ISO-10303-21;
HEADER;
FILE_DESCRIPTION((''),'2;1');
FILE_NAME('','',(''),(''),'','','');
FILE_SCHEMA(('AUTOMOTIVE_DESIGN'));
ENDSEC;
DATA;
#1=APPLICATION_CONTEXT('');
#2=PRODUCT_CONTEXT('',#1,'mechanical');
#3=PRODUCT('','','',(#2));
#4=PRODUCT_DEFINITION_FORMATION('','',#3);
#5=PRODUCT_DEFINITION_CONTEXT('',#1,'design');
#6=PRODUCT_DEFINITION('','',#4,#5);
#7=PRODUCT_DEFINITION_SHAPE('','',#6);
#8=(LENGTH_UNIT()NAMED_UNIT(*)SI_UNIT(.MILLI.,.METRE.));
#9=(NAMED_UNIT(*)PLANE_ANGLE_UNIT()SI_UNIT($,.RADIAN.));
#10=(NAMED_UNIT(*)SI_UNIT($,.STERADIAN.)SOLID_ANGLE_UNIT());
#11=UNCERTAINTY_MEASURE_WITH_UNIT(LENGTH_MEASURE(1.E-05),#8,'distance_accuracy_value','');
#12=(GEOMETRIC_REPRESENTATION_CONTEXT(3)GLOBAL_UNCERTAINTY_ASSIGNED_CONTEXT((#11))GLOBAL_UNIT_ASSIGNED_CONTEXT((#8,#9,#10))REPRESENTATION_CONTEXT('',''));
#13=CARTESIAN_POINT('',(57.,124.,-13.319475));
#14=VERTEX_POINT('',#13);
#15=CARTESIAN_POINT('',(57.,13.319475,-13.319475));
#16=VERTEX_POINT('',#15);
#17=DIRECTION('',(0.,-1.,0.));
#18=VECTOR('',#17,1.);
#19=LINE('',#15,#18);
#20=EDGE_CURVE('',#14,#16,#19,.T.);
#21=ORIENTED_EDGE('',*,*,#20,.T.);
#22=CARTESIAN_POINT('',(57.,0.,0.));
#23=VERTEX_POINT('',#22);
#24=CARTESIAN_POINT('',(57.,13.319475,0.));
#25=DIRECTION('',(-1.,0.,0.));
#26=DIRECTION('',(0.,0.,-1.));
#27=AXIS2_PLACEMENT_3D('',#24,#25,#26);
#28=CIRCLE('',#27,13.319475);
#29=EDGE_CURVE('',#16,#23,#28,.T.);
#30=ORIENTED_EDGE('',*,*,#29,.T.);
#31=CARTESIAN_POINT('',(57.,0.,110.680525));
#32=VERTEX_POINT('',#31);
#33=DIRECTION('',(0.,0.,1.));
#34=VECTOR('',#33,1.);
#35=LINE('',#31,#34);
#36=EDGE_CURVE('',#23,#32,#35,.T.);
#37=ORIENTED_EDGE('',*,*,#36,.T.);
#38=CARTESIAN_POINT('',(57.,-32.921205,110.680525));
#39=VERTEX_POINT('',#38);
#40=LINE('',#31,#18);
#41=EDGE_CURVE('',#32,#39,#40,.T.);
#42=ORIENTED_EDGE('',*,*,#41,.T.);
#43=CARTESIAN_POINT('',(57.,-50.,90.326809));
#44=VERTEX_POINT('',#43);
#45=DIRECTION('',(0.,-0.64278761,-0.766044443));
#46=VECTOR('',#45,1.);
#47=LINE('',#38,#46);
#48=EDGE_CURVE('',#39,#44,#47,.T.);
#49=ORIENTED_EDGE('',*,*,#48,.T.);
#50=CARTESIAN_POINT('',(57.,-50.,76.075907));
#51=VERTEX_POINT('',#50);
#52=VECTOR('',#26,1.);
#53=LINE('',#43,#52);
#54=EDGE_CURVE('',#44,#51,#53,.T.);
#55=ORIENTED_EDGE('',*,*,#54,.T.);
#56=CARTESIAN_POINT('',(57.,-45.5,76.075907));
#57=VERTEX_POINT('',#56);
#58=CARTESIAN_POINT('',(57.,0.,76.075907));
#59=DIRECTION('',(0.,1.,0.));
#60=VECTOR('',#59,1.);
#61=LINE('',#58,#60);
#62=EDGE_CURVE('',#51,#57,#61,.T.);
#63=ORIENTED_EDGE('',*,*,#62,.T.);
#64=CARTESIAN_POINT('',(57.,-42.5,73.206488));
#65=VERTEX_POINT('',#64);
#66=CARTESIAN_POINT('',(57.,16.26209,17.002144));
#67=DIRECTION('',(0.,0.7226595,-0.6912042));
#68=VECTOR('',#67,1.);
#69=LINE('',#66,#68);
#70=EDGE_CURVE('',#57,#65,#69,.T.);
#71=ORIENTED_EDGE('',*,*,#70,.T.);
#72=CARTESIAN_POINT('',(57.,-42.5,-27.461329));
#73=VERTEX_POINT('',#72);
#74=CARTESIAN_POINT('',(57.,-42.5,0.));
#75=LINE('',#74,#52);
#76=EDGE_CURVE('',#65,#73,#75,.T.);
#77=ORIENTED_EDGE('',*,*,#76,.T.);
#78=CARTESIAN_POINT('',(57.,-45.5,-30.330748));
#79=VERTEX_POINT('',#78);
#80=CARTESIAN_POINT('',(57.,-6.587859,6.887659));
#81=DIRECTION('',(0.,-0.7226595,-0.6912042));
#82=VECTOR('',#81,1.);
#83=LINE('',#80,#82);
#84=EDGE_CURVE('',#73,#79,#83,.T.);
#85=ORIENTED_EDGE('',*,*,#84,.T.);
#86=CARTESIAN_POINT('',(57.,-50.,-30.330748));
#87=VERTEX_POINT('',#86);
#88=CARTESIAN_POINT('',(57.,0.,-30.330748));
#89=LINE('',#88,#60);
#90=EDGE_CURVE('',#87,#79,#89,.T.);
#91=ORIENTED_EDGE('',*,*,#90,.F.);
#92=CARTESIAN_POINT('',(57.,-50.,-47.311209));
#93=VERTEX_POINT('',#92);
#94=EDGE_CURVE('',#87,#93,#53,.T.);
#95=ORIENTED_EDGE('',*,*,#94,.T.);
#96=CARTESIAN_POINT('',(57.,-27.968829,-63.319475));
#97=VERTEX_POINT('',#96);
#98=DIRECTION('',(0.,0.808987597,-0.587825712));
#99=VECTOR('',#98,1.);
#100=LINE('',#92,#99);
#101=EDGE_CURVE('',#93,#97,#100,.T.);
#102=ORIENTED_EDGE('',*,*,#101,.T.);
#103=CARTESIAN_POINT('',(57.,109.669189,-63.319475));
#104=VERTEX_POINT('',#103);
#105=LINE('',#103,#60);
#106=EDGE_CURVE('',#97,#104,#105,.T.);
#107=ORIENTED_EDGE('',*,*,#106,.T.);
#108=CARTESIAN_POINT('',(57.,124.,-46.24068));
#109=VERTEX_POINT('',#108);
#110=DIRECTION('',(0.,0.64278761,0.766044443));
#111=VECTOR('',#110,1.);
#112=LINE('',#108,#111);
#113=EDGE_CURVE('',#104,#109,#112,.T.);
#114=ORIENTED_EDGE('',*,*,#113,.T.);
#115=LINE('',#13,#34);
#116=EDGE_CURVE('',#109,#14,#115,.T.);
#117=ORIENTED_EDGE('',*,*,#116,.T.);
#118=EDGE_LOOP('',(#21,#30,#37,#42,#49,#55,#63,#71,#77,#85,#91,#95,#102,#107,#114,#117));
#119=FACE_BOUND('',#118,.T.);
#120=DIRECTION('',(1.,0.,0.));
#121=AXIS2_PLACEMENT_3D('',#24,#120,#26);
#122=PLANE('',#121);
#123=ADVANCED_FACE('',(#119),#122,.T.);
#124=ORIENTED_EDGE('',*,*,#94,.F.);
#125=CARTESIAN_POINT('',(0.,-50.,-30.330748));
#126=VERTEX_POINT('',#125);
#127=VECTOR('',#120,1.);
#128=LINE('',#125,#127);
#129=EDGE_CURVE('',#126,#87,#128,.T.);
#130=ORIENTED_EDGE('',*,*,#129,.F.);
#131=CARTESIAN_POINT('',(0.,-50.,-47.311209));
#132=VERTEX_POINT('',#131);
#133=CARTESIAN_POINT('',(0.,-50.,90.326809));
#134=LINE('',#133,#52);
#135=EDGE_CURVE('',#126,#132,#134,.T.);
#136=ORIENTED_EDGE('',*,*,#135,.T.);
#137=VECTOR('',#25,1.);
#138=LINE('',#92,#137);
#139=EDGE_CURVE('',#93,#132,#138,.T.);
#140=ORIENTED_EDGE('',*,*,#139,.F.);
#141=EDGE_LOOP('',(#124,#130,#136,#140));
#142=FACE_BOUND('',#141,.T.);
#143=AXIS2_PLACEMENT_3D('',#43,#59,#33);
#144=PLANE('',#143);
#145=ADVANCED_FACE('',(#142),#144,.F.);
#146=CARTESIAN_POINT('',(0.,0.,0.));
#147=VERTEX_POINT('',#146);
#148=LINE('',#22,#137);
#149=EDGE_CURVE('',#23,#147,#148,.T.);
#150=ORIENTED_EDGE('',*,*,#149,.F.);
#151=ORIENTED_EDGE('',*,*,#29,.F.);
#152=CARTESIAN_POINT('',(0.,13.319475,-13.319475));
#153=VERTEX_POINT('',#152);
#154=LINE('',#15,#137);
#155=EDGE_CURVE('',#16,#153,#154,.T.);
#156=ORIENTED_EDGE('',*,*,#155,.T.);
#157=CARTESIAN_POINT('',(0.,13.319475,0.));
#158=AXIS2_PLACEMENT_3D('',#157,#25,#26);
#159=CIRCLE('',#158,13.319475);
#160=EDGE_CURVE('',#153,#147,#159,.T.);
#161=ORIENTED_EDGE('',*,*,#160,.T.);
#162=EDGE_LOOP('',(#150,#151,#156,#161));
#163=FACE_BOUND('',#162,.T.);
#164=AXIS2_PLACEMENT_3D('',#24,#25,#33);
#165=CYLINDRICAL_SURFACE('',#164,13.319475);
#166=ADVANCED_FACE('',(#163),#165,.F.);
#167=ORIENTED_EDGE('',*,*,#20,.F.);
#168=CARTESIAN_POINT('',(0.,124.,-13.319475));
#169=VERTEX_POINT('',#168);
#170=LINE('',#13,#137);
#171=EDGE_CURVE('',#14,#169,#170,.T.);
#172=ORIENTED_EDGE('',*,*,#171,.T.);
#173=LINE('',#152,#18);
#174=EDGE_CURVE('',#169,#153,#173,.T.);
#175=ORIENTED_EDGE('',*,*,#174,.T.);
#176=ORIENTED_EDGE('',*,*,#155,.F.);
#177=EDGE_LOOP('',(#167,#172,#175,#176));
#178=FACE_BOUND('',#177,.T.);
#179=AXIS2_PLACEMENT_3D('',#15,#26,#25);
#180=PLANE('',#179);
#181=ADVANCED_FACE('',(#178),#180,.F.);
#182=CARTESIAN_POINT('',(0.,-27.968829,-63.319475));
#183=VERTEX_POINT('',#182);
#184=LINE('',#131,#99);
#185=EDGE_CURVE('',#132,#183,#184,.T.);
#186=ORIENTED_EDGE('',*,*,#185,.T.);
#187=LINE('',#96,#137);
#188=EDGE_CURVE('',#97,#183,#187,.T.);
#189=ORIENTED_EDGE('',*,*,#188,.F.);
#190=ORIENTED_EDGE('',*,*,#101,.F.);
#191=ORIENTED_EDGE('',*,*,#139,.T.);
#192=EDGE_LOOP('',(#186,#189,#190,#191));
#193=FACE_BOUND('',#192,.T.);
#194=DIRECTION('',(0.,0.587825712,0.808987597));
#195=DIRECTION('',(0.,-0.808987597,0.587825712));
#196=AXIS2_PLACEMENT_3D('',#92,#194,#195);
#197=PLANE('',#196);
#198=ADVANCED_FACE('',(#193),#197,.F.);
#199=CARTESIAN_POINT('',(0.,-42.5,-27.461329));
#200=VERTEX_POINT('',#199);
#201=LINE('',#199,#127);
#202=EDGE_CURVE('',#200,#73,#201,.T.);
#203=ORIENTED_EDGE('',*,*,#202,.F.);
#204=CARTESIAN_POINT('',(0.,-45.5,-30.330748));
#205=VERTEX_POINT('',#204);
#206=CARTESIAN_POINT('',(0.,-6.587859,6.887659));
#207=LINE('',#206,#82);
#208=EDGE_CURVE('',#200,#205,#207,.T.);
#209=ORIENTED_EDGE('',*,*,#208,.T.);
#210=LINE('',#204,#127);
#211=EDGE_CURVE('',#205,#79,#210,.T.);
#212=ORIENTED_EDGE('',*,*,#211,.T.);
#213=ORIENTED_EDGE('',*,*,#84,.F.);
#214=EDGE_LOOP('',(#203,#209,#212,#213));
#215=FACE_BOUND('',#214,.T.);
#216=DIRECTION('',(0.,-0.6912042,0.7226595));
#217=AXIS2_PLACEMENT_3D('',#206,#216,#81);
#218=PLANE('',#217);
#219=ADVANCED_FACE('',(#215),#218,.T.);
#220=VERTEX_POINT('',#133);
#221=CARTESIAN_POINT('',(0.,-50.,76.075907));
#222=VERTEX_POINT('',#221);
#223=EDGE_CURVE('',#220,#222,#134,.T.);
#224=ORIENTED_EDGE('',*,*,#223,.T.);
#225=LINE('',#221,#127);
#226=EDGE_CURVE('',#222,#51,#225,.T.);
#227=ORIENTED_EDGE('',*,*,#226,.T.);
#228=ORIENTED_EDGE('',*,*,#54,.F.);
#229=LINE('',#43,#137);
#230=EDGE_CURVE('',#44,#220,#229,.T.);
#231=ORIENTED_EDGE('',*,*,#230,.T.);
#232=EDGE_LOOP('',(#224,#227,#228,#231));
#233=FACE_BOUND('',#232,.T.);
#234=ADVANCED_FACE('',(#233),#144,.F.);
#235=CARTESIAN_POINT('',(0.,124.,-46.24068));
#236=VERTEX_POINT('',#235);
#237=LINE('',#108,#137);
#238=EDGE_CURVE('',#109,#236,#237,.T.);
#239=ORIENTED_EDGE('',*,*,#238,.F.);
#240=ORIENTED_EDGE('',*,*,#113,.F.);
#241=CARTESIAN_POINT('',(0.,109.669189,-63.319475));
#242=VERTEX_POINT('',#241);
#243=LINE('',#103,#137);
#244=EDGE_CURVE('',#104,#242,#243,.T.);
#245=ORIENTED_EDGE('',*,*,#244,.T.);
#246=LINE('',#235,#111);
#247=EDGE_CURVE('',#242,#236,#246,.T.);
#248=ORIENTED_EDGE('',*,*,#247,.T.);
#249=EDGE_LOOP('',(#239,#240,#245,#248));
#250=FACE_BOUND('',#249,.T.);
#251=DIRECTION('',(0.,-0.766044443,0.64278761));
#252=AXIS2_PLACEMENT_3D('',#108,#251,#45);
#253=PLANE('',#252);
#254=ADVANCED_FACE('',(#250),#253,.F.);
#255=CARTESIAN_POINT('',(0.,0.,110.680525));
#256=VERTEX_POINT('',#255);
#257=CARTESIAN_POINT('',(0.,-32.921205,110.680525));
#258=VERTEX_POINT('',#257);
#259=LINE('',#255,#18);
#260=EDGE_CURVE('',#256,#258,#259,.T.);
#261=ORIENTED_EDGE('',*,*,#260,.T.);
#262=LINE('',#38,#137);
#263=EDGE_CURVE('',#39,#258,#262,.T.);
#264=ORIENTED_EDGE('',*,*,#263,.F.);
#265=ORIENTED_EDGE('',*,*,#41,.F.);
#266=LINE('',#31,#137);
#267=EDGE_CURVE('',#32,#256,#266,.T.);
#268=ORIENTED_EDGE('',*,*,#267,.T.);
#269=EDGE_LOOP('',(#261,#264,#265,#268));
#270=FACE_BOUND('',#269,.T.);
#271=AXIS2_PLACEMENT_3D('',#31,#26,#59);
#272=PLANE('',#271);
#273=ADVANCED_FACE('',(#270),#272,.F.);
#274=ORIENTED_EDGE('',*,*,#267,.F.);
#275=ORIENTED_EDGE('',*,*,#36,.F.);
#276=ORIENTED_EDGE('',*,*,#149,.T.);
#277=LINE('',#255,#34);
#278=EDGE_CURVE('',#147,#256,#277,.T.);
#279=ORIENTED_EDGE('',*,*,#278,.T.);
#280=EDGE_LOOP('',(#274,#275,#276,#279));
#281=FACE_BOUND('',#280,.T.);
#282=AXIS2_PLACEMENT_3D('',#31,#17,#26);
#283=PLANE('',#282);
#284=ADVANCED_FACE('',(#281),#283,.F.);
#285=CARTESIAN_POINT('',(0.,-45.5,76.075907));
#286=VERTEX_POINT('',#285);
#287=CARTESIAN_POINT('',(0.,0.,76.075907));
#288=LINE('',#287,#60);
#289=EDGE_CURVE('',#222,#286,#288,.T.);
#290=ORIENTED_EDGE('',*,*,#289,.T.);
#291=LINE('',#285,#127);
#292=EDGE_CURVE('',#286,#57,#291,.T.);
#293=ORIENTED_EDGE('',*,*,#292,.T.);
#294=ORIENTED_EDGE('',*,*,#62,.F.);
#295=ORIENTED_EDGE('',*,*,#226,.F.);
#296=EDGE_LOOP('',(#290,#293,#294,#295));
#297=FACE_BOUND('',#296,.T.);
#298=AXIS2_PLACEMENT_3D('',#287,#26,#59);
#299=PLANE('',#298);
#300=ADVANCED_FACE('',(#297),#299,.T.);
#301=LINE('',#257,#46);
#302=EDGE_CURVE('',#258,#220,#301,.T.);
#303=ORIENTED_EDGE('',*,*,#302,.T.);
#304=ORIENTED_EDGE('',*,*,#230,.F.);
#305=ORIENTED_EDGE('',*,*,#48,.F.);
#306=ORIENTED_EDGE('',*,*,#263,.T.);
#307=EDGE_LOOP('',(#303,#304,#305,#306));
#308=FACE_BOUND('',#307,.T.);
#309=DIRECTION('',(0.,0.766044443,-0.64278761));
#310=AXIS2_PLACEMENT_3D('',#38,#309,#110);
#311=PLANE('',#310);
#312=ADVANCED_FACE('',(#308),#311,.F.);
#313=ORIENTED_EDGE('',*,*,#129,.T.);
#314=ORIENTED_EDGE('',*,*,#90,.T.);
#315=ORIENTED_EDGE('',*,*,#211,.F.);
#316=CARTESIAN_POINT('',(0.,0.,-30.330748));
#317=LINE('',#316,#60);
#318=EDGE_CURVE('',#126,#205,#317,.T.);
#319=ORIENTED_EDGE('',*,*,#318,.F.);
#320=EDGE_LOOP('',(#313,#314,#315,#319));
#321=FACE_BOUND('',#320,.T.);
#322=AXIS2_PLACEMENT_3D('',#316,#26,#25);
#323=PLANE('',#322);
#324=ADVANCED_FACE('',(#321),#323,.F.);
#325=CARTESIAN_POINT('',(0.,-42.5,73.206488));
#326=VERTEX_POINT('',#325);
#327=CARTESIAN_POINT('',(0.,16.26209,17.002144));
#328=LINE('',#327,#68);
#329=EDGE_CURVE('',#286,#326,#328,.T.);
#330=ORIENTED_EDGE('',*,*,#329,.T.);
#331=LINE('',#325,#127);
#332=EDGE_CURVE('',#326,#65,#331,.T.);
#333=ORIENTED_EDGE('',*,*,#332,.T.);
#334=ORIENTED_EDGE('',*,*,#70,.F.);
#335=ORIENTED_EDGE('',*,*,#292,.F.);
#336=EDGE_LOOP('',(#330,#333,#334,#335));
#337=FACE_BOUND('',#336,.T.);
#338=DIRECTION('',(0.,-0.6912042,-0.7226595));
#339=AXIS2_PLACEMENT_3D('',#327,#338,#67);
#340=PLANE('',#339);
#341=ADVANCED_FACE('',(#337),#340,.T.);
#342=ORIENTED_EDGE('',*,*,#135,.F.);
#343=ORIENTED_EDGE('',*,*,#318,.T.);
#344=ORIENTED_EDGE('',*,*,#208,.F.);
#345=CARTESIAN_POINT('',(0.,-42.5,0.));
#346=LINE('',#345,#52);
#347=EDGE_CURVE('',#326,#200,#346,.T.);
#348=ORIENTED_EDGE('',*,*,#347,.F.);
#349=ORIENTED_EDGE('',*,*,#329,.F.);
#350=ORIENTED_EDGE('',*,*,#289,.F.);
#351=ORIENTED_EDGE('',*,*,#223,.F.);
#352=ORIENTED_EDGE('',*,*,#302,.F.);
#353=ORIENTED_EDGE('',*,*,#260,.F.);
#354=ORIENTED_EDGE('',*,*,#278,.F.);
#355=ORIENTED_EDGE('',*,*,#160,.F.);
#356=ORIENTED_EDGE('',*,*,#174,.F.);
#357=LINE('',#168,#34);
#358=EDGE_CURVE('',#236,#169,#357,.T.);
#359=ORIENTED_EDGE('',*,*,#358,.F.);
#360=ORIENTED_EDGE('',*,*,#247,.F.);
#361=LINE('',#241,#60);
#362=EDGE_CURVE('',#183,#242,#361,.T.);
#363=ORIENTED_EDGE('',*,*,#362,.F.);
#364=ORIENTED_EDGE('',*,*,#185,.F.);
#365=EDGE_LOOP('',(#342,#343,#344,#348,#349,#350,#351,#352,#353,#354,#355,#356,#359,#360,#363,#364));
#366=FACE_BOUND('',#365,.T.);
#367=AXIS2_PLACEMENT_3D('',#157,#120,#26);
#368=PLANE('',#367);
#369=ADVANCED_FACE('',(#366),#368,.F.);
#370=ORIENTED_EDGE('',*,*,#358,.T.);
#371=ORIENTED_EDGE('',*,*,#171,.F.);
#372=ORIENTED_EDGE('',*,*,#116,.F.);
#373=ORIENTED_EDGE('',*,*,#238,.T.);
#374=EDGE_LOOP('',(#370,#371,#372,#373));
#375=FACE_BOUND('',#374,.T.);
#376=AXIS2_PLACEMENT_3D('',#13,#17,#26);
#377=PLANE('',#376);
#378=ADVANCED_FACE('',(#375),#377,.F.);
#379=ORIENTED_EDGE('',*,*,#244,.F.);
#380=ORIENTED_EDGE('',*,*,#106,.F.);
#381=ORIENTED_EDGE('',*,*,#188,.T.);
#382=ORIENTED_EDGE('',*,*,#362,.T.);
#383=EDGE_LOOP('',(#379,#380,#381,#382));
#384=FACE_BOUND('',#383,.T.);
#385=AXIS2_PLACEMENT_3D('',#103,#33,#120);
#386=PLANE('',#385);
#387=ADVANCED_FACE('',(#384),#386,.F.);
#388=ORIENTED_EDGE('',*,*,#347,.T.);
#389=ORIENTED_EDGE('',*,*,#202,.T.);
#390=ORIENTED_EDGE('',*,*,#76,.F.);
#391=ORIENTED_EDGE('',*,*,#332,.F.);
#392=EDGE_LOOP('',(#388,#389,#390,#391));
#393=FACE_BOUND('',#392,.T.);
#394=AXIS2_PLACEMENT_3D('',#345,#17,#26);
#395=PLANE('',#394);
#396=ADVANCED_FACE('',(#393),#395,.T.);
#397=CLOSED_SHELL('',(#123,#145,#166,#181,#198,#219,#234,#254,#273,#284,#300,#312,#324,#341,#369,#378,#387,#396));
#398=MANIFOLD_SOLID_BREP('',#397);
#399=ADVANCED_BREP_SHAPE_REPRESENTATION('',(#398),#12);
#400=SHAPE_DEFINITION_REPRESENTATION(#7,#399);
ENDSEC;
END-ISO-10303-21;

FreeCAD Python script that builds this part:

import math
import FreeCAD as App
import Part
import Sketcher
Q = App.Units.Quantity

doc = App.newDocument("Part")
body = doc.addObject("PartDesign::Body", "Body")

# Sketch on YZ plane
sketch1 = body.newObject("Sketcher::SketchObject", "Sketch")
sketch1.AttachmentSupport = (doc.getObject("YZ_Plane"), [""])
sketch1.MapMode = "FlatFace"
sketch1.addGeometry([
    Part.LineSegment(App.Vector(0, 111, 0), App.Vector(-33, 111, 0)),  # 0
    Part.LineSegment(App.Vector(-33, 111, 0), App.Vector(-50, 90, 0)),  # 1
    Part.LineSegment(App.Vector(-50, 90, 0), App.Vector(-50, -47, 0)),  # 2
    Part.LineSegment(App.Vector(-50, -47, 0), App.Vector(-28, -63, 0)),  # 3
    Part.LineSegment(App.Vector(-28, -63, 0), App.Vector(110, -63, 0)),  # 4
    Part.LineSegment(App.Vector(110, -63, 0), App.Vector(124, -46, 0)),  # 5
    Part.LineSegment(App.Vector(124, -46, 0), App.Vector(124, -13, 0)),  # 6
    Part.LineSegment(App.Vector(124, -13, 0), App.Vector(13, -13, 0)),  # 7
    Part.ArcOfCircle(Part.Circle(App.Vector(13, 0, 0), App.Vector(0, 0, 1), 13), math.radians(180), math.radians(270)),  # 8
    Part.LineSegment(App.Vector(0, 0, 0), App.Vector(0, 111, 0)),  # 9
], False)
sketch1.addConstraint([
    Sketcher.Constraint("Coincident", 0, 2, 1, 1),
    Sketcher.Constraint("Coincident", 1, 2, 2, 1),
    Sketcher.Constraint("Coincident", 2, 2, 3, 1),
    Sketcher.Constraint("Coincident", 3, 2, 4, 1),
    Sketcher.Constraint("Coincident", 4, 2, 5, 1),
    Sketcher.Constraint("Coincident", 5, 2, 6, 1),
    Sketcher.Constraint("Coincident", 6, 2, 7, 1),
    Sketcher.Constraint("Tangent", 7, 2, 8, 2),
    Sketcher.Constraint("Tangent", 8, 1, 9, 1),
    Sketcher.Constraint("Coincident", 9, 2, 0, 1),
    Sketcher.Constraint("Horizontal", 0),
    Sketcher.Constraint("Vertical", 2),
    Sketcher.Constraint("Horizontal", 4),
    Sketcher.Constraint("Vertical", 6),
    Sketcher.Constraint("Horizontal", 7),
    Sketcher.Constraint("Vertical", 9),
    Sketcher.Constraint("Coincident", 8, 1, -1, 1),
    Sketcher.Constraint("Parallel", 1, 5),
    Sketcher.Constraint("Equal", 4, 2),
    Sketcher.Constraint("Equal", 0, 6),
    Sketcher.Constraint("Equal", 7, 9),
    Sketcher.Constraint("Angle", 1, Q("-130 deg")),
    Sketcher.Constraint("DistanceX", 1, 2, -1, 1, 50.0),
    Sketcher.Constraint("DistanceX", -1, 1, 5, 2, 124.0),
    Sketcher.Constraint("DistanceY", 3, 2, 0, 2, 174.0),
    Sketcher.Constraint("Radius", 8, 13.319475),
    Sketcher.Constraint("Distance", 1, 26.569889),
    Sketcher.Constraint("DistanceX", 4, 1, 4, 2, 137.638018),
])
pad1 = body.newObject("PartDesign::Pad", "Pad")
pad1.Profile = sketch1
pad1.Length = 57

# Sketch on YZ plane
sketch2 = body.newObject("Sketcher::SketchObject", "Sketch001")
sketch2.AttachmentSupport = (doc.getObject("YZ_Plane"), [""])
sketch2.MapMode = "FlatFace"
sketch2.AttachmentOffset = App.Placement(App.Vector(0, 0, 57), App.Rotation())
sketch2.addGeometry([
    Part.LineSegment(App.Vector(-45.5, 76.1, 0), App.Vector(-50, 76.1, 0)),  # 0
    Part.LineSegment(App.Vector(-50, 76.1, 0), App.Vector(-50, -30.3, 0)),  # 1
    Part.LineSegment(App.Vector(-50, -30.3, 0), App.Vector(-45.5, -30.3, 0)),  # 2
    Part.LineSegment(App.Vector(-45.5, -30.3, 0), App.Vector(-42.5, -27.5, 0)),  # 3
    Part.LineSegment(App.Vector(-42.5, -27.5, 0), App.Vector(-42.5, 73.2, 0)),  # 4
    Part.LineSegment(App.Vector(-42.5, 73.2, 0), App.Vector(-45.5, 76.1, 0)),  # 5
], False)
sketch2.addConstraint([
    Sketcher.Constraint("Coincident", 0, 2, 1, 1),
    Sketcher.Constraint("Coincident", 1, 2, 2, 1),
    Sketcher.Constraint("Coincident", 2, 2, 3, 1),
    Sketcher.Constraint("Coincident", 3, 2, 4, 1),
    Sketcher.Constraint("Coincident", 4, 2, 5, 1),
    Sketcher.Constraint("Coincident", 5, 2, 0, 1),
    Sketcher.Constraint("Horizontal", 0),
    Sketcher.Constraint("Vertical", 1),
    Sketcher.Constraint("Horizontal", 2),
    Sketcher.Constraint("Vertical", 4),
    Sketcher.Constraint("Vertical", 2, 2, 5, 2),
    Sketcher.Constraint("Equal", 3, 5),
    Sketcher.Constraint("DistanceX", 0, 2, 0, 1, 4.5),
    Sketcher.Constraint("DistanceX", 0, 2, -1, 1, 50.0),
    Sketcher.Constraint("DistanceX", 2, 2, 3, 2, 3.0),
    Sketcher.Constraint("DistanceY", 1, 2, 1, 1, 106.406655),
    Sketcher.Constraint("DistanceY", 4, 1, 4, 2, 100.667818),
    Sketcher.Constraint("DistanceY", 3, 2, -1, 1, 27.461329),
])
pocket1 = body.newObject("PartDesign::Pocket", "Pocket")
pocket1.Profile = sketch2
pocket1.Type = "ThroughAll"

doc.recompute()
